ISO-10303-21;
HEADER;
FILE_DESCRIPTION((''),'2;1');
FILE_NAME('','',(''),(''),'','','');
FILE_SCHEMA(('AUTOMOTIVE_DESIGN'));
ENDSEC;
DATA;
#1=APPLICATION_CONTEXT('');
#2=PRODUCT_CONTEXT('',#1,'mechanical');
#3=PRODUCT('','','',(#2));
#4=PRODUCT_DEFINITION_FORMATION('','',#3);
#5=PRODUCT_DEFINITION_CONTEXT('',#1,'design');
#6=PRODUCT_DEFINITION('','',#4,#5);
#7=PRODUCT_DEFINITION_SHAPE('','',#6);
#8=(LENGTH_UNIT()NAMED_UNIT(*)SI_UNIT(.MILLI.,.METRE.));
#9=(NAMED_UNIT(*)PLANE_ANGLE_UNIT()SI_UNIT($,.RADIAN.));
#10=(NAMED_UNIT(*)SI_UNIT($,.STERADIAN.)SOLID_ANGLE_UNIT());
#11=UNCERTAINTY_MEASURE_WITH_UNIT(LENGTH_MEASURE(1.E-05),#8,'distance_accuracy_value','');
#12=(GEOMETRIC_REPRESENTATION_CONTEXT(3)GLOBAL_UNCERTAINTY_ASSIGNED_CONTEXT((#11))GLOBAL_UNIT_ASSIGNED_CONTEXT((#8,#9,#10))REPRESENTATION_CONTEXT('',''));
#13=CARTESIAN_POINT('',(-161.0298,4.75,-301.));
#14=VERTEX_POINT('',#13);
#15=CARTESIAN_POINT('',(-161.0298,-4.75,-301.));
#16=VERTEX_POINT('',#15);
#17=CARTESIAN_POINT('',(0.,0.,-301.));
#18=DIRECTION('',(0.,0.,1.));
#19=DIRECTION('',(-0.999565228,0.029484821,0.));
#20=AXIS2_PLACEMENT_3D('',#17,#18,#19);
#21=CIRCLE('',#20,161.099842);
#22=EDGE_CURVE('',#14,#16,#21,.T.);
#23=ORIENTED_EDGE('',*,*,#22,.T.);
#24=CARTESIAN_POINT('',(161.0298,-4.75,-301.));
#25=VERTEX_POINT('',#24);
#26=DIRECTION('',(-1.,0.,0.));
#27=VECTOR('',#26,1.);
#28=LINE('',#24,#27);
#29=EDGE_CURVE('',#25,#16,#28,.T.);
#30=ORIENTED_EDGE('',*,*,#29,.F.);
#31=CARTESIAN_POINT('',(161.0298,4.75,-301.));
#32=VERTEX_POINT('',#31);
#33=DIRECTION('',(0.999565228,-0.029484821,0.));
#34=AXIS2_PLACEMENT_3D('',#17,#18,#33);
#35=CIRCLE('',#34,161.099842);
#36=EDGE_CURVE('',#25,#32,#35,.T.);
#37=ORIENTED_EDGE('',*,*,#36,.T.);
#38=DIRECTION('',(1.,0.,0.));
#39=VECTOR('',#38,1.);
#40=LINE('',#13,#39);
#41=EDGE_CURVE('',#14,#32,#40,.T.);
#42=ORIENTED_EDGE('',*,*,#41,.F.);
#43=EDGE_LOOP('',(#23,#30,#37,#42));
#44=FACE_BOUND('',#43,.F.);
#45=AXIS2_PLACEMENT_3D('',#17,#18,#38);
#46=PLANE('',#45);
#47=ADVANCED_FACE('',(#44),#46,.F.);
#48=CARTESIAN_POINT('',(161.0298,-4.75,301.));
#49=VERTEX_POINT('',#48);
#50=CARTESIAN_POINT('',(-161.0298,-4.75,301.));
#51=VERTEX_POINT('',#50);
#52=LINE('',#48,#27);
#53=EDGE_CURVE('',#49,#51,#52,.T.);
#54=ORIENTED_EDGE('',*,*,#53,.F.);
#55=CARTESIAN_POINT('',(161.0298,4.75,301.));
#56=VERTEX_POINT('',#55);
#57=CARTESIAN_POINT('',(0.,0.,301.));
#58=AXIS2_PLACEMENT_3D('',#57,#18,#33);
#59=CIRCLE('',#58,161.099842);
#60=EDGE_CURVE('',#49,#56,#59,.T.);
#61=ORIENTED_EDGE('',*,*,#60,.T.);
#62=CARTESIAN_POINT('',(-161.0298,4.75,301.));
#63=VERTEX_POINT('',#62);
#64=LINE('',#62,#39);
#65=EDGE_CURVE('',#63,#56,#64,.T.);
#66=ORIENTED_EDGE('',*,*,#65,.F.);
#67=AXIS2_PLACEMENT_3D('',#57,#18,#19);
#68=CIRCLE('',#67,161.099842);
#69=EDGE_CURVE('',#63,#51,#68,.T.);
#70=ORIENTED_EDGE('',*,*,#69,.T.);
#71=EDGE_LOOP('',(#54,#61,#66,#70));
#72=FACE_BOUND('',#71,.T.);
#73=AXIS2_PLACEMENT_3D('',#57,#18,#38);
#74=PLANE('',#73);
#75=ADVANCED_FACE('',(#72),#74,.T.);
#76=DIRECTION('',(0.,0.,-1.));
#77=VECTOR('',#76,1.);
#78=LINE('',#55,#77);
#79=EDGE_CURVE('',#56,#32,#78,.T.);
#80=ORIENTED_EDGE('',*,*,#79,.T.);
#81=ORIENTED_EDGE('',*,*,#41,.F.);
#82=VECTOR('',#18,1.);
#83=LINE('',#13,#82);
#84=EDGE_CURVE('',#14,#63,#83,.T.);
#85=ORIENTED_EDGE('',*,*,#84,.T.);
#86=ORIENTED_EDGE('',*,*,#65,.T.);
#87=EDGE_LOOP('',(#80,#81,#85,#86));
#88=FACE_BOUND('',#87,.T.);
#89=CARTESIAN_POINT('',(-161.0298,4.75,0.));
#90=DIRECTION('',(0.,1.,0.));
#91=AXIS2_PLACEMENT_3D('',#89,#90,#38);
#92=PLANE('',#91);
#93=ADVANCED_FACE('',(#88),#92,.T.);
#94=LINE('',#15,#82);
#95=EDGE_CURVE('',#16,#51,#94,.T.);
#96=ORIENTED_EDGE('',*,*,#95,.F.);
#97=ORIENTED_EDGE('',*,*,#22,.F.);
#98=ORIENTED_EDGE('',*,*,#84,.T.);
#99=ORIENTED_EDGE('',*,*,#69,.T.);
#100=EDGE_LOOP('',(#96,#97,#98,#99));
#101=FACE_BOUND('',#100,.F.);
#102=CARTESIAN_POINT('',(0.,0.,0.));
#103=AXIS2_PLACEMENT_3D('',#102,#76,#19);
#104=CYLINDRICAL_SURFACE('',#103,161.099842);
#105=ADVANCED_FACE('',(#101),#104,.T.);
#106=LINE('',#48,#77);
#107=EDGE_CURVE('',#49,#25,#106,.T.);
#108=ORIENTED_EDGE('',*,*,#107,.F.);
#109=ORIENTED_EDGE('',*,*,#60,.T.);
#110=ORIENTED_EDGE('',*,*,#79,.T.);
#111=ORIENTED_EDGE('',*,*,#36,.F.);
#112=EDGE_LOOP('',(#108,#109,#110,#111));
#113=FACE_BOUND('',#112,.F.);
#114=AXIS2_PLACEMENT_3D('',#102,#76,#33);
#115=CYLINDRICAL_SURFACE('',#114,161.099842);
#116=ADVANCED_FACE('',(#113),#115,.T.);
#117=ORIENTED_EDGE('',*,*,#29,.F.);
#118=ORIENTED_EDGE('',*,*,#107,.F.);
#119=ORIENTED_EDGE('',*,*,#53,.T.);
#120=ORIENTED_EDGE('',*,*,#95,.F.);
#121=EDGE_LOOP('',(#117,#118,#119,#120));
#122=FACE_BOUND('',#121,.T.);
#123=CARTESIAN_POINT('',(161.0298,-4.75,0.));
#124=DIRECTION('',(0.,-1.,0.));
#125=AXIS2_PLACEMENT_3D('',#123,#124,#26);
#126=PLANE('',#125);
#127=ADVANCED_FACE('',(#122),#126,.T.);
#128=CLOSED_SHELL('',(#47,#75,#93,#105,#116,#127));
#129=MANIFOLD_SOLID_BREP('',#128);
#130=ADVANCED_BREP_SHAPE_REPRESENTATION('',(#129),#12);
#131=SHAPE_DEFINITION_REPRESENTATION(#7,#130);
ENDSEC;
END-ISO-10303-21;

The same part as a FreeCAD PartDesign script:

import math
import FreeCAD as App
import Part
import Sketcher
Q = App.Units.Quantity

doc = App.newDocument("Part")
params = doc.addObject("Spreadsheet::Sheet", "Params")
for row, (alias, value) in enumerate([
    ("pad1_length", "301 mm"),
    ("pad1_length2", "301 mm"),
], start=1):
    params.set(f"A{row}", alias)
    params.set(f"B{row}", "=" + value)
    params.setAlias(f"B{row}", alias)

body = doc.addObject("PartDesign::Body", "Body")

# Sketch on XY plane
sketch1 = body.newObject("Sketcher::SketchObject", "Sketch")
sketch1.AttachmentSupport = (doc.getObject("XY_Plane"), [""])
sketch1.MapMode = "FlatFace"
sketch1.addGeometry(Part.LineSegment(App.Vector(161, 5, 0), App.Vector(-161, 5, 0)), False)
sketch1.addGeometry(Part.ArcOfCircle(Part.Circle(App.Vector(0, 0, 0), App.Vector(0, 0, 1), 161), math.radians(178.31), math.radians(181.69)), False)
sketch1.addGeometry(Part.LineSegment(App.Vector(-161, -5, 0), App.Vector(161, -5, 0)), False)
sketch1.addGeometry(Part.ArcOfCircle(Part.Circle(App.Vector(0, 0, 0), App.Vector(0, 0, 1), 161), math.radians(-1.69), math.radians(1.69)), False)
sketch1.addConstraint(Sketcher.Constraint("Coincident", 0, 2, 1, 1))
sketch1.addConstraint(Sketcher.Constraint("Coincident", 1, 2, 2, 1))
sketch1.addConstraint(Sketcher.Constraint("Coincident", 2, 2, 3, 1))
sketch1.addConstraint(Sketcher.Constraint("Coincident", 3, 2, 0, 1))
sketch1.addConstraint(Sketcher.Constraint("Horizontal", 0))
sketch1.addConstraint(Sketcher.Constraint("Horizontal", 2))
sketch1.addConstraint(Sketcher.Constraint("Coincident", 1, 3, -1, 1))
sketch1.addConstraint(Sketcher.Constraint("Coincident", 3, 3, -1, 1))
sketch1.addConstraint(Sketcher.Constraint("Equal", 1, 3))
sketch1.addConstraint(Sketcher.Constraint("Vertical", 0, 2, 1, 2))
sketch1.addConstraint(Sketcher.Constraint("DistanceY", 1, 2, 0, 2, Q("9.5 mm")))
sketch1.addConstraint(Sketcher.Constraint("DistanceX", 0, 2, 0, 1, Q("322.0596 mm")))
pad1 = body.newObject("PartDesign::Pad", "Pad")
pad1.Profile = sketch1
pad1.Type = "TwoLengths"
pad1.setExpression("Length", "Params.pad1_length")
pad1.setExpression("Length2", "Params.pad1_length2")

doc.recompute()
